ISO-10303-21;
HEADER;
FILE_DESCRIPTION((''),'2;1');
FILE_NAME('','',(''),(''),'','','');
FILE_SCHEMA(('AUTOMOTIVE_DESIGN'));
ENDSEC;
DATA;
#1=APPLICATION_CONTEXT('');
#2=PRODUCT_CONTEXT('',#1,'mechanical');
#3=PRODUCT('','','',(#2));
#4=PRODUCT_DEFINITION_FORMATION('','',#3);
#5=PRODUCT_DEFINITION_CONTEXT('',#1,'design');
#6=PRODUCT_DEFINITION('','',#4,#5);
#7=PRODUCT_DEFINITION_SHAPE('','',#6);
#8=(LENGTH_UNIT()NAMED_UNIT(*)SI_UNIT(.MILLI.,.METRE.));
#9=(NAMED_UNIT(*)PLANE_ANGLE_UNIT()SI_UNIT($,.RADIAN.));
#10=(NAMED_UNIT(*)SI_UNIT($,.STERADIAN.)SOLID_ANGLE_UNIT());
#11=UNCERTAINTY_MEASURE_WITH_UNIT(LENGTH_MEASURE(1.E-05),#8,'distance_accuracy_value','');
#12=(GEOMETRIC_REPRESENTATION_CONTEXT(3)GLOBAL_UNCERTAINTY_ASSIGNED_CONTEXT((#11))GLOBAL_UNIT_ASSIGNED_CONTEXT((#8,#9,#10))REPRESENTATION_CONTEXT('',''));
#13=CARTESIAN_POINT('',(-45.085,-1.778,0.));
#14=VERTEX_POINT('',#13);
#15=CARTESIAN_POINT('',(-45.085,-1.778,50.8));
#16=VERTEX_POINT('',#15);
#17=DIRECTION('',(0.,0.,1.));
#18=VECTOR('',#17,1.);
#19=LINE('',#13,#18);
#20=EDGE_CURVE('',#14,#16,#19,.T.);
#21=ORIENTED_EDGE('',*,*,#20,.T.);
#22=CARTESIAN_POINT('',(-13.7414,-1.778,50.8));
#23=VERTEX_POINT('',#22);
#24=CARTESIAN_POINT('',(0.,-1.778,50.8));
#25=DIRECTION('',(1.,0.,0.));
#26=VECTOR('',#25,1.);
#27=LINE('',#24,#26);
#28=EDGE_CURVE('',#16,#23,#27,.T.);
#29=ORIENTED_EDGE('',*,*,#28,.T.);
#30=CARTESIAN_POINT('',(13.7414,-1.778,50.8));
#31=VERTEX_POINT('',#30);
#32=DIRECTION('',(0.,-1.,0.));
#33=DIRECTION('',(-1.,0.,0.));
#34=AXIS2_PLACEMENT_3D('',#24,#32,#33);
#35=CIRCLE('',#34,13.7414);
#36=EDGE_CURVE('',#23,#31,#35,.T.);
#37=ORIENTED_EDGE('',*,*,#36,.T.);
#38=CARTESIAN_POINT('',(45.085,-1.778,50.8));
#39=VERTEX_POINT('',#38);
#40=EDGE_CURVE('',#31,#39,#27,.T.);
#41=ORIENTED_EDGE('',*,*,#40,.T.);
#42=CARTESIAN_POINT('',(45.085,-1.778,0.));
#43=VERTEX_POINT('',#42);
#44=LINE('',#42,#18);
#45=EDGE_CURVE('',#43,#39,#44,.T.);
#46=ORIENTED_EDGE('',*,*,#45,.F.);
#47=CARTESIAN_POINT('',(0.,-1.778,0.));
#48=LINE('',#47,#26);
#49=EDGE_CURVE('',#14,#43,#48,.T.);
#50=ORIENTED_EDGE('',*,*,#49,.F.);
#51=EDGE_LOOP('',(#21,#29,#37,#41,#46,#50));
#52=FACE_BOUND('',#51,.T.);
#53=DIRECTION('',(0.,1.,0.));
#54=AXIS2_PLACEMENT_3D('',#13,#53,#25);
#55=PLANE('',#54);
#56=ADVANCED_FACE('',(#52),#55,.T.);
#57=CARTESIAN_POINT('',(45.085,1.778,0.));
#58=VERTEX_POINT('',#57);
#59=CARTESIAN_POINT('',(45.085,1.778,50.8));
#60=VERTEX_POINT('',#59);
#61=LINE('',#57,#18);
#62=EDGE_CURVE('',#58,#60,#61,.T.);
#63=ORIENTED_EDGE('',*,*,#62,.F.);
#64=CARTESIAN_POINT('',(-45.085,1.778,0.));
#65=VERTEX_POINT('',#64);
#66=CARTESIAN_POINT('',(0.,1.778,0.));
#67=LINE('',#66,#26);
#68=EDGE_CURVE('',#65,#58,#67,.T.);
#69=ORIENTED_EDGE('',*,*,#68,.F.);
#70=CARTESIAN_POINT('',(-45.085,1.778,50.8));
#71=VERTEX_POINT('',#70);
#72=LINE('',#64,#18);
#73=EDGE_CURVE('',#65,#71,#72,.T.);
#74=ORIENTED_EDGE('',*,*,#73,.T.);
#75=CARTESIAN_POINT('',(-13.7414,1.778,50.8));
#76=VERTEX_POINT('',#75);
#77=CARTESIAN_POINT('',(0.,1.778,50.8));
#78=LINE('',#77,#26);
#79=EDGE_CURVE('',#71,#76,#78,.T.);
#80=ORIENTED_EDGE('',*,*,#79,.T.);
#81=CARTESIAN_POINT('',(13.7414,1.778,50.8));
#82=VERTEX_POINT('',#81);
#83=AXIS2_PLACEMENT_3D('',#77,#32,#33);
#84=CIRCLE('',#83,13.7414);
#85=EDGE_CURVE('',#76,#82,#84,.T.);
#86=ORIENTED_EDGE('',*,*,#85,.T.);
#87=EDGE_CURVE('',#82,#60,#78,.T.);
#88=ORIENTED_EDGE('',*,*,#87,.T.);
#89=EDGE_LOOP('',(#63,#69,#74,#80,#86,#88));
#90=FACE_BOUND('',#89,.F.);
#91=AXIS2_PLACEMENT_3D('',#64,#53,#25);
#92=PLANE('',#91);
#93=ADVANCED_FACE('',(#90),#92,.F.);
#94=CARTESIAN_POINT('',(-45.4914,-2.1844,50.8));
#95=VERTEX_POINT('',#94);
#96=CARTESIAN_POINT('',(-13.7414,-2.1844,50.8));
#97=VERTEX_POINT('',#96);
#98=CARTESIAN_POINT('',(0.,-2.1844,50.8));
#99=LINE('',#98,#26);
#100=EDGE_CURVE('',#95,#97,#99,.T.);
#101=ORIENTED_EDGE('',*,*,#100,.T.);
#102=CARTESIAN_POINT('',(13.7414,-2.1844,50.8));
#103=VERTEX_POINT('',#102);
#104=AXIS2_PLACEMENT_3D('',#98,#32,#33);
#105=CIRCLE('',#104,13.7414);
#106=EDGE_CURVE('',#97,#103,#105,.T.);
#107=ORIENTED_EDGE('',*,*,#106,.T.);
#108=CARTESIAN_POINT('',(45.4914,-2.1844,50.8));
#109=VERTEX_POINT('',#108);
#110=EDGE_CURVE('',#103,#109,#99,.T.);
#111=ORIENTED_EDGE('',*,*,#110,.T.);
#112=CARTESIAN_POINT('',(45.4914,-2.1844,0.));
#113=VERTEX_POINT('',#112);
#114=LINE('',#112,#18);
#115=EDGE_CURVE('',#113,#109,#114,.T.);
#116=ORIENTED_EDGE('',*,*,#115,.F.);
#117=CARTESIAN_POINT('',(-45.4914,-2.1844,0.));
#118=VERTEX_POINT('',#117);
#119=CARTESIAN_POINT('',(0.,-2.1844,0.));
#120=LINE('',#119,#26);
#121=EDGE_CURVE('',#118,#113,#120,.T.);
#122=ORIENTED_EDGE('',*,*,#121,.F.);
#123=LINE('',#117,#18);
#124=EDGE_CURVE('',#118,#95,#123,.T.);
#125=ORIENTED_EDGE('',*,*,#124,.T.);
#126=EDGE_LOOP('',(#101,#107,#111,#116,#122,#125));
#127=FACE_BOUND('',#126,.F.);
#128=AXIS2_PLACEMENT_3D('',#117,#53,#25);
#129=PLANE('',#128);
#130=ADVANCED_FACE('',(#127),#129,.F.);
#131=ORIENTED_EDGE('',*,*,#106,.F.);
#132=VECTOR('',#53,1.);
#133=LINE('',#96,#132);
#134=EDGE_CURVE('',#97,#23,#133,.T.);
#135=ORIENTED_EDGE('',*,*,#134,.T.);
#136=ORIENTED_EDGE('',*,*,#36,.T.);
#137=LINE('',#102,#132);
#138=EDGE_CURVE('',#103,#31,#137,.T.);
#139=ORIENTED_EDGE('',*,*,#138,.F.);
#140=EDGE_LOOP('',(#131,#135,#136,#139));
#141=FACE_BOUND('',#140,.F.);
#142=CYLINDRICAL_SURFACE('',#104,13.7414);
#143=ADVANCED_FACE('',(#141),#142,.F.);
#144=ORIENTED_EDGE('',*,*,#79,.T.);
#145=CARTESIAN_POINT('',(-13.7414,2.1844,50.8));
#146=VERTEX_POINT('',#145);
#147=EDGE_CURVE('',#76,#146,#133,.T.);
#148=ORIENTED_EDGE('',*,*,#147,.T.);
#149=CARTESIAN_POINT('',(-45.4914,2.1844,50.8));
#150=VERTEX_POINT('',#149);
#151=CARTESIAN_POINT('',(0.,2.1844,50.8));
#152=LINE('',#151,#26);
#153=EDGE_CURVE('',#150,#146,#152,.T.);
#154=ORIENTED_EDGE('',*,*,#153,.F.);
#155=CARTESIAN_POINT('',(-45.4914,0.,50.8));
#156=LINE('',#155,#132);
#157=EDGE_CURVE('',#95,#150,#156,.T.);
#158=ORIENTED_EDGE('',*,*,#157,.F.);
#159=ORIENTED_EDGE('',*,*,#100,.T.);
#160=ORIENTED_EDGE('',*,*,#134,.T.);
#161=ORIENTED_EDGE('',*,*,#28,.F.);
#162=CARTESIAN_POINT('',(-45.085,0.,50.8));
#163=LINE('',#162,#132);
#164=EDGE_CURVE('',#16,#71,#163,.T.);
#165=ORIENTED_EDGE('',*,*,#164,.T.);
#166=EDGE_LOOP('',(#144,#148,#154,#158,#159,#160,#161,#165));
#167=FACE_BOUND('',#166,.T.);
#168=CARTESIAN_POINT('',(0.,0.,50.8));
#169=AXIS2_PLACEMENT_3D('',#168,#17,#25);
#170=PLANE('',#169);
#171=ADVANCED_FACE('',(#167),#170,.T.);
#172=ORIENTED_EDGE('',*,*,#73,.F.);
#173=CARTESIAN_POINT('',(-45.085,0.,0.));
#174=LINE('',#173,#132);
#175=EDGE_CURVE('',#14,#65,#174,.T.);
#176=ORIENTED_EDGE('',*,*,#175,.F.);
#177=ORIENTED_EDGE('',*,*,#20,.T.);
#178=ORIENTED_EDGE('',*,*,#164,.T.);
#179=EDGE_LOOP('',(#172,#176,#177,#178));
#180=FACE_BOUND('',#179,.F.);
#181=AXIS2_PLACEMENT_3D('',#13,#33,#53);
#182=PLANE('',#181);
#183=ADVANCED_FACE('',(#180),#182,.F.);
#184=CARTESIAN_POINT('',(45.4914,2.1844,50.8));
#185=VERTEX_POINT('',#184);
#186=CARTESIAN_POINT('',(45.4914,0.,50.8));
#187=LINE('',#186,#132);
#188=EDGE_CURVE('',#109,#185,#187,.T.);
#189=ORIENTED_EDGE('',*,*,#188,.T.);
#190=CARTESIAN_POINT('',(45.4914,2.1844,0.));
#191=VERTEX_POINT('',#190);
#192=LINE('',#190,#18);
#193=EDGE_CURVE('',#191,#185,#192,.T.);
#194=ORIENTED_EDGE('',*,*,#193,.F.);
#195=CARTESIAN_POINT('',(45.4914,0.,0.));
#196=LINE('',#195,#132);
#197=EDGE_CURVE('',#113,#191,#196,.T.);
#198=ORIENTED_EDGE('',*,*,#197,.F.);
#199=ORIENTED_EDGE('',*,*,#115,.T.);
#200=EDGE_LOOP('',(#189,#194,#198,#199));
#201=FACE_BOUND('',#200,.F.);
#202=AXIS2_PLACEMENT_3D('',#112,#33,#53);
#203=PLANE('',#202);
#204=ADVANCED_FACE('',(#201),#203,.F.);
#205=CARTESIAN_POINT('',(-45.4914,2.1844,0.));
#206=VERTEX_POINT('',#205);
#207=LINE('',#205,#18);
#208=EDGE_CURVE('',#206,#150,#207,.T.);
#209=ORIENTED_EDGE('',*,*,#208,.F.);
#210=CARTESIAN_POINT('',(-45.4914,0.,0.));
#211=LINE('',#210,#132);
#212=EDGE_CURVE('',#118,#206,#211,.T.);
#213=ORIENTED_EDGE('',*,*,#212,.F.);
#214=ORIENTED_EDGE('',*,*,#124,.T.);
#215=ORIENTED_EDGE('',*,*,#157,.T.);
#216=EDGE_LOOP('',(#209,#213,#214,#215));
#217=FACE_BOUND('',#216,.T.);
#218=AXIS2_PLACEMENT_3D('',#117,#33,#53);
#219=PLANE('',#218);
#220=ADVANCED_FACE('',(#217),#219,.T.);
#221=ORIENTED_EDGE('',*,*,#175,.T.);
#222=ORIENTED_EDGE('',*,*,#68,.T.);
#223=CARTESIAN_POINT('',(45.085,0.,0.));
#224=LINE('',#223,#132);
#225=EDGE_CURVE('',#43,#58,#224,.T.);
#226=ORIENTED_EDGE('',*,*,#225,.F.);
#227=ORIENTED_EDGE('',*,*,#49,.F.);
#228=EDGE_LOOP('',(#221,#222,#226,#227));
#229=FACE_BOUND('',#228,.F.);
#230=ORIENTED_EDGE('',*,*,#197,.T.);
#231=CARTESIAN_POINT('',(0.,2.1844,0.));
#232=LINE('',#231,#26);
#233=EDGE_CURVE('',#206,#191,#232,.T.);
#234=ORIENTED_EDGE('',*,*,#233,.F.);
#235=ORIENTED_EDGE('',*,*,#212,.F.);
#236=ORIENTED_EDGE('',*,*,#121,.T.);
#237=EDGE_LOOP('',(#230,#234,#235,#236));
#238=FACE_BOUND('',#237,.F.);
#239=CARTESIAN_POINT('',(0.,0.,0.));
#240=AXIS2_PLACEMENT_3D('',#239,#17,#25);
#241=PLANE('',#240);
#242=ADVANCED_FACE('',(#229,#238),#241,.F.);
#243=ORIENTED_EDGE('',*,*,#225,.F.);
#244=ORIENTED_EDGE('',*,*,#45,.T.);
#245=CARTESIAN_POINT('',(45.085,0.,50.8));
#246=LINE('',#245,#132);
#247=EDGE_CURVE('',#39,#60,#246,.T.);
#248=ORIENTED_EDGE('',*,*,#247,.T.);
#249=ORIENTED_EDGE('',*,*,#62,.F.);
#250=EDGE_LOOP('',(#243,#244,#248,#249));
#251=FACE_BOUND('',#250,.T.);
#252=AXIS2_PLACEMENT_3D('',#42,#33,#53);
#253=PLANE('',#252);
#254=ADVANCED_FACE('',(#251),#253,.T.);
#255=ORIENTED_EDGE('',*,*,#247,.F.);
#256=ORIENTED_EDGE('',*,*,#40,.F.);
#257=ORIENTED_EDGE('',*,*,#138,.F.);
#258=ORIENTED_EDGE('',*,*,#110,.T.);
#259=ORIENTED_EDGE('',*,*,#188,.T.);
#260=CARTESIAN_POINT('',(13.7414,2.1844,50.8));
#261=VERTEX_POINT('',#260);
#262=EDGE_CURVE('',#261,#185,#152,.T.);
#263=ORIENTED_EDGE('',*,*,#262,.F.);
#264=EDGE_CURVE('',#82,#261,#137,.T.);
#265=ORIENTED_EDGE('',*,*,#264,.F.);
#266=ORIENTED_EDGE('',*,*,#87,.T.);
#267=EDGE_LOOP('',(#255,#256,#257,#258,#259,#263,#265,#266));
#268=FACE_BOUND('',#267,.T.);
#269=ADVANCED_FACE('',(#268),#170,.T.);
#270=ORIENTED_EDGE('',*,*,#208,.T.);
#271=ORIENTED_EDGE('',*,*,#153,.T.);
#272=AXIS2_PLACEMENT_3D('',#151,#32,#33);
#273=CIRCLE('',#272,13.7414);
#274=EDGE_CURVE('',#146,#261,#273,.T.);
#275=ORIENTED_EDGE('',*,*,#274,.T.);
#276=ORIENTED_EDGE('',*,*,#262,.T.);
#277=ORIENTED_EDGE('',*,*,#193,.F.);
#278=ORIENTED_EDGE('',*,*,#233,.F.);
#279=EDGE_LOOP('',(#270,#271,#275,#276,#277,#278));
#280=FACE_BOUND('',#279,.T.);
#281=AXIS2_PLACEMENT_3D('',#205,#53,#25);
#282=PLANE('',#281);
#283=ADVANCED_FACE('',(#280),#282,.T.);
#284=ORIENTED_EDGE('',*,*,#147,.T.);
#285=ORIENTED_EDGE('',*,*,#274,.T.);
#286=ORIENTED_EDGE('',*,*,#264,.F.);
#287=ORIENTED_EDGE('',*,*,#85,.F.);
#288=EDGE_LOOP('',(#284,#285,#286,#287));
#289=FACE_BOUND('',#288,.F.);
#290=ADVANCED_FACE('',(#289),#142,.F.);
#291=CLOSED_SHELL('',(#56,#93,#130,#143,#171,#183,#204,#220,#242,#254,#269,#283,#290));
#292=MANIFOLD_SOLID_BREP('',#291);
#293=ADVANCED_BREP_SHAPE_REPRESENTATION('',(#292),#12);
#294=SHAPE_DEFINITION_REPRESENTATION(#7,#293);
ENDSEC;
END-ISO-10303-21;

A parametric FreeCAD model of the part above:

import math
import FreeCAD as App
import Part
import Sketcher
Q = App.Units.Quantity

doc = App.newDocument("Part")
body = doc.addObject("PartDesign::Body", "Body")

# Sketch on XY plane
sketch1 = body.newObject("Sketcher::SketchObject", "Sketch")
sketch1.AttachmentSupport = (doc.getObject("XY_Plane"), [""])
sketch1.MapMode = "FlatFace"
sketch1.addGeometry([
    Part.LineSegment(App.Vector(-45.4914, 2.1844, 0), App.Vector(-45.4914, -2.1844, 0)),  # 0
    Part.LineSegment(App.Vector(-45.4914, -2.1844, 0), App.Vector(45.4914, -2.1844, 0)),  # 1
    Part.LineSegment(App.Vector(45.4914, -2.1844, 0), App.Vector(45.4914, 2.1844, 0)),  # 2
    Part.LineSegment(App.Vector(45.4914, 2.1844, 0), App.Vector(-45.4914, 2.1844, 0)),  # 3
    Part.LineSegment(App.Vector(45.085, -1.778, 0), App.Vector(-45.085, -1.778, 0)),  # 4
    Part.LineSegment(App.Vector(-45.085, -1.778, 0), App.Vector(-45.085, 1.778, 0)),  # 5
    Part.LineSegment(App.Vector(-45.085, 1.778, 0), App.Vector(45.085, 1.778, 0)),  # 6
    Part.LineSegment(App.Vector(45.085, 1.778, 0), App.Vector(45.085, -1.778, 0)),  # 7
], False)
sketch1.addConstraint([
    Sketcher.Constraint("Coincident", 0, 2, 1, 1),
    Sketcher.Constraint("Coincident", 1, 2, 2, 1),
    Sketcher.Constraint("Coincident", 2, 2, 3, 1),
    Sketcher.Constraint("Coincident", 3, 2, 0, 1),
    Sketcher.Constraint("Coincident", 4, 2, 5, 1),
    Sketcher.Constraint("Coincident", 5, 2, 6, 1),
    Sketcher.Constraint("Coincident", 6, 2, 7, 1),
    Sketcher.Constraint("Coincident", 7, 2, 4, 1),
    Sketcher.Constraint("Vertical", 0),
    Sketcher.Constraint("Horizontal", 1),
    Sketcher.Constraint("Vertical", 2),
    Sketcher.Constraint("Horizontal", 3),
    Sketcher.Constraint("Horizontal", 4),
    Sketcher.Constraint("Vertical", 5),
    Sketcher.Constraint("Horizontal", 6),
    Sketcher.Constraint("Vertical", 7),
    Sketcher.Constraint("Symmetric", 0, 2, 2, 2, -1, 1),
    Sketcher.Constraint("Symmetric", 4, 2, 6, 2, -1, 1),
    Sketcher.Constraint("DistanceX", 4, 2, 4, 1, Q("3.55 in")),
    Sketcher.Constraint("DistanceY", 5, 1, 5, 2, Q("0.14 in")),
    Sketcher.Constraint("DistanceX", 1, 1, 1, 2, Q("3.582 in")),
    Sketcher.Constraint("DistanceY", 0, 2, 0, 1, Q("0.172 in")),
])
pad1 = body.newObject("PartDesign::Pad", "Pad")
pad1.Profile = sketch1
pad1.Length = Q("2 in")

# Sketch on XZ plane
sketch2 = body.newObject("Sketcher::SketchObject", "Sketch001")
sketch2.AttachmentSupport = (doc.getObject("XZ_Plane"), [""])
sketch2.MapMode = "FlatFace"
sketch2.AttachmentOffset = App.Placement(App.Vector(0, 0, 0.086 * 25.4), App.Rotation())
sketch2.addGeometry([
    Part.LineSegment(App.Vector(13.7414, 50.8, 0), App.Vector(-13.7414, 50.8, 0)),
    Part.ArcOfCircle(Part.Circle(App.Vector(0, 50.8, 0), App.Vector(0, 0, 1), 13.7414), math.radians(180), math.radians(360)),
], False)
sketch2.addConstraint([
    Sketcher.Constraint("Coincident", 0, 1, 1, 2),
    Sketcher.Constraint("Coincident", 1, 1, 0, 2),
    Sketcher.Constraint("Horizontal", 0),
    Sketcher.Constraint("PointOnObject", 1, 3, -2),
    Sketcher.Constraint("Horizontal", 1, 3, 0, 1),
    Sketcher.Constraint("DistanceY", -1, 1, 1, 3, Q("2 in")),
    Sketcher.Constraint("Radius", 1, Q("0.541 in")),
])
pocket1 = body.newObject("PartDesign::Pocket", "Pocket")
pocket1.Profile = sketch2
pocket1.Type = "ThroughAll"

doc.recompute()
